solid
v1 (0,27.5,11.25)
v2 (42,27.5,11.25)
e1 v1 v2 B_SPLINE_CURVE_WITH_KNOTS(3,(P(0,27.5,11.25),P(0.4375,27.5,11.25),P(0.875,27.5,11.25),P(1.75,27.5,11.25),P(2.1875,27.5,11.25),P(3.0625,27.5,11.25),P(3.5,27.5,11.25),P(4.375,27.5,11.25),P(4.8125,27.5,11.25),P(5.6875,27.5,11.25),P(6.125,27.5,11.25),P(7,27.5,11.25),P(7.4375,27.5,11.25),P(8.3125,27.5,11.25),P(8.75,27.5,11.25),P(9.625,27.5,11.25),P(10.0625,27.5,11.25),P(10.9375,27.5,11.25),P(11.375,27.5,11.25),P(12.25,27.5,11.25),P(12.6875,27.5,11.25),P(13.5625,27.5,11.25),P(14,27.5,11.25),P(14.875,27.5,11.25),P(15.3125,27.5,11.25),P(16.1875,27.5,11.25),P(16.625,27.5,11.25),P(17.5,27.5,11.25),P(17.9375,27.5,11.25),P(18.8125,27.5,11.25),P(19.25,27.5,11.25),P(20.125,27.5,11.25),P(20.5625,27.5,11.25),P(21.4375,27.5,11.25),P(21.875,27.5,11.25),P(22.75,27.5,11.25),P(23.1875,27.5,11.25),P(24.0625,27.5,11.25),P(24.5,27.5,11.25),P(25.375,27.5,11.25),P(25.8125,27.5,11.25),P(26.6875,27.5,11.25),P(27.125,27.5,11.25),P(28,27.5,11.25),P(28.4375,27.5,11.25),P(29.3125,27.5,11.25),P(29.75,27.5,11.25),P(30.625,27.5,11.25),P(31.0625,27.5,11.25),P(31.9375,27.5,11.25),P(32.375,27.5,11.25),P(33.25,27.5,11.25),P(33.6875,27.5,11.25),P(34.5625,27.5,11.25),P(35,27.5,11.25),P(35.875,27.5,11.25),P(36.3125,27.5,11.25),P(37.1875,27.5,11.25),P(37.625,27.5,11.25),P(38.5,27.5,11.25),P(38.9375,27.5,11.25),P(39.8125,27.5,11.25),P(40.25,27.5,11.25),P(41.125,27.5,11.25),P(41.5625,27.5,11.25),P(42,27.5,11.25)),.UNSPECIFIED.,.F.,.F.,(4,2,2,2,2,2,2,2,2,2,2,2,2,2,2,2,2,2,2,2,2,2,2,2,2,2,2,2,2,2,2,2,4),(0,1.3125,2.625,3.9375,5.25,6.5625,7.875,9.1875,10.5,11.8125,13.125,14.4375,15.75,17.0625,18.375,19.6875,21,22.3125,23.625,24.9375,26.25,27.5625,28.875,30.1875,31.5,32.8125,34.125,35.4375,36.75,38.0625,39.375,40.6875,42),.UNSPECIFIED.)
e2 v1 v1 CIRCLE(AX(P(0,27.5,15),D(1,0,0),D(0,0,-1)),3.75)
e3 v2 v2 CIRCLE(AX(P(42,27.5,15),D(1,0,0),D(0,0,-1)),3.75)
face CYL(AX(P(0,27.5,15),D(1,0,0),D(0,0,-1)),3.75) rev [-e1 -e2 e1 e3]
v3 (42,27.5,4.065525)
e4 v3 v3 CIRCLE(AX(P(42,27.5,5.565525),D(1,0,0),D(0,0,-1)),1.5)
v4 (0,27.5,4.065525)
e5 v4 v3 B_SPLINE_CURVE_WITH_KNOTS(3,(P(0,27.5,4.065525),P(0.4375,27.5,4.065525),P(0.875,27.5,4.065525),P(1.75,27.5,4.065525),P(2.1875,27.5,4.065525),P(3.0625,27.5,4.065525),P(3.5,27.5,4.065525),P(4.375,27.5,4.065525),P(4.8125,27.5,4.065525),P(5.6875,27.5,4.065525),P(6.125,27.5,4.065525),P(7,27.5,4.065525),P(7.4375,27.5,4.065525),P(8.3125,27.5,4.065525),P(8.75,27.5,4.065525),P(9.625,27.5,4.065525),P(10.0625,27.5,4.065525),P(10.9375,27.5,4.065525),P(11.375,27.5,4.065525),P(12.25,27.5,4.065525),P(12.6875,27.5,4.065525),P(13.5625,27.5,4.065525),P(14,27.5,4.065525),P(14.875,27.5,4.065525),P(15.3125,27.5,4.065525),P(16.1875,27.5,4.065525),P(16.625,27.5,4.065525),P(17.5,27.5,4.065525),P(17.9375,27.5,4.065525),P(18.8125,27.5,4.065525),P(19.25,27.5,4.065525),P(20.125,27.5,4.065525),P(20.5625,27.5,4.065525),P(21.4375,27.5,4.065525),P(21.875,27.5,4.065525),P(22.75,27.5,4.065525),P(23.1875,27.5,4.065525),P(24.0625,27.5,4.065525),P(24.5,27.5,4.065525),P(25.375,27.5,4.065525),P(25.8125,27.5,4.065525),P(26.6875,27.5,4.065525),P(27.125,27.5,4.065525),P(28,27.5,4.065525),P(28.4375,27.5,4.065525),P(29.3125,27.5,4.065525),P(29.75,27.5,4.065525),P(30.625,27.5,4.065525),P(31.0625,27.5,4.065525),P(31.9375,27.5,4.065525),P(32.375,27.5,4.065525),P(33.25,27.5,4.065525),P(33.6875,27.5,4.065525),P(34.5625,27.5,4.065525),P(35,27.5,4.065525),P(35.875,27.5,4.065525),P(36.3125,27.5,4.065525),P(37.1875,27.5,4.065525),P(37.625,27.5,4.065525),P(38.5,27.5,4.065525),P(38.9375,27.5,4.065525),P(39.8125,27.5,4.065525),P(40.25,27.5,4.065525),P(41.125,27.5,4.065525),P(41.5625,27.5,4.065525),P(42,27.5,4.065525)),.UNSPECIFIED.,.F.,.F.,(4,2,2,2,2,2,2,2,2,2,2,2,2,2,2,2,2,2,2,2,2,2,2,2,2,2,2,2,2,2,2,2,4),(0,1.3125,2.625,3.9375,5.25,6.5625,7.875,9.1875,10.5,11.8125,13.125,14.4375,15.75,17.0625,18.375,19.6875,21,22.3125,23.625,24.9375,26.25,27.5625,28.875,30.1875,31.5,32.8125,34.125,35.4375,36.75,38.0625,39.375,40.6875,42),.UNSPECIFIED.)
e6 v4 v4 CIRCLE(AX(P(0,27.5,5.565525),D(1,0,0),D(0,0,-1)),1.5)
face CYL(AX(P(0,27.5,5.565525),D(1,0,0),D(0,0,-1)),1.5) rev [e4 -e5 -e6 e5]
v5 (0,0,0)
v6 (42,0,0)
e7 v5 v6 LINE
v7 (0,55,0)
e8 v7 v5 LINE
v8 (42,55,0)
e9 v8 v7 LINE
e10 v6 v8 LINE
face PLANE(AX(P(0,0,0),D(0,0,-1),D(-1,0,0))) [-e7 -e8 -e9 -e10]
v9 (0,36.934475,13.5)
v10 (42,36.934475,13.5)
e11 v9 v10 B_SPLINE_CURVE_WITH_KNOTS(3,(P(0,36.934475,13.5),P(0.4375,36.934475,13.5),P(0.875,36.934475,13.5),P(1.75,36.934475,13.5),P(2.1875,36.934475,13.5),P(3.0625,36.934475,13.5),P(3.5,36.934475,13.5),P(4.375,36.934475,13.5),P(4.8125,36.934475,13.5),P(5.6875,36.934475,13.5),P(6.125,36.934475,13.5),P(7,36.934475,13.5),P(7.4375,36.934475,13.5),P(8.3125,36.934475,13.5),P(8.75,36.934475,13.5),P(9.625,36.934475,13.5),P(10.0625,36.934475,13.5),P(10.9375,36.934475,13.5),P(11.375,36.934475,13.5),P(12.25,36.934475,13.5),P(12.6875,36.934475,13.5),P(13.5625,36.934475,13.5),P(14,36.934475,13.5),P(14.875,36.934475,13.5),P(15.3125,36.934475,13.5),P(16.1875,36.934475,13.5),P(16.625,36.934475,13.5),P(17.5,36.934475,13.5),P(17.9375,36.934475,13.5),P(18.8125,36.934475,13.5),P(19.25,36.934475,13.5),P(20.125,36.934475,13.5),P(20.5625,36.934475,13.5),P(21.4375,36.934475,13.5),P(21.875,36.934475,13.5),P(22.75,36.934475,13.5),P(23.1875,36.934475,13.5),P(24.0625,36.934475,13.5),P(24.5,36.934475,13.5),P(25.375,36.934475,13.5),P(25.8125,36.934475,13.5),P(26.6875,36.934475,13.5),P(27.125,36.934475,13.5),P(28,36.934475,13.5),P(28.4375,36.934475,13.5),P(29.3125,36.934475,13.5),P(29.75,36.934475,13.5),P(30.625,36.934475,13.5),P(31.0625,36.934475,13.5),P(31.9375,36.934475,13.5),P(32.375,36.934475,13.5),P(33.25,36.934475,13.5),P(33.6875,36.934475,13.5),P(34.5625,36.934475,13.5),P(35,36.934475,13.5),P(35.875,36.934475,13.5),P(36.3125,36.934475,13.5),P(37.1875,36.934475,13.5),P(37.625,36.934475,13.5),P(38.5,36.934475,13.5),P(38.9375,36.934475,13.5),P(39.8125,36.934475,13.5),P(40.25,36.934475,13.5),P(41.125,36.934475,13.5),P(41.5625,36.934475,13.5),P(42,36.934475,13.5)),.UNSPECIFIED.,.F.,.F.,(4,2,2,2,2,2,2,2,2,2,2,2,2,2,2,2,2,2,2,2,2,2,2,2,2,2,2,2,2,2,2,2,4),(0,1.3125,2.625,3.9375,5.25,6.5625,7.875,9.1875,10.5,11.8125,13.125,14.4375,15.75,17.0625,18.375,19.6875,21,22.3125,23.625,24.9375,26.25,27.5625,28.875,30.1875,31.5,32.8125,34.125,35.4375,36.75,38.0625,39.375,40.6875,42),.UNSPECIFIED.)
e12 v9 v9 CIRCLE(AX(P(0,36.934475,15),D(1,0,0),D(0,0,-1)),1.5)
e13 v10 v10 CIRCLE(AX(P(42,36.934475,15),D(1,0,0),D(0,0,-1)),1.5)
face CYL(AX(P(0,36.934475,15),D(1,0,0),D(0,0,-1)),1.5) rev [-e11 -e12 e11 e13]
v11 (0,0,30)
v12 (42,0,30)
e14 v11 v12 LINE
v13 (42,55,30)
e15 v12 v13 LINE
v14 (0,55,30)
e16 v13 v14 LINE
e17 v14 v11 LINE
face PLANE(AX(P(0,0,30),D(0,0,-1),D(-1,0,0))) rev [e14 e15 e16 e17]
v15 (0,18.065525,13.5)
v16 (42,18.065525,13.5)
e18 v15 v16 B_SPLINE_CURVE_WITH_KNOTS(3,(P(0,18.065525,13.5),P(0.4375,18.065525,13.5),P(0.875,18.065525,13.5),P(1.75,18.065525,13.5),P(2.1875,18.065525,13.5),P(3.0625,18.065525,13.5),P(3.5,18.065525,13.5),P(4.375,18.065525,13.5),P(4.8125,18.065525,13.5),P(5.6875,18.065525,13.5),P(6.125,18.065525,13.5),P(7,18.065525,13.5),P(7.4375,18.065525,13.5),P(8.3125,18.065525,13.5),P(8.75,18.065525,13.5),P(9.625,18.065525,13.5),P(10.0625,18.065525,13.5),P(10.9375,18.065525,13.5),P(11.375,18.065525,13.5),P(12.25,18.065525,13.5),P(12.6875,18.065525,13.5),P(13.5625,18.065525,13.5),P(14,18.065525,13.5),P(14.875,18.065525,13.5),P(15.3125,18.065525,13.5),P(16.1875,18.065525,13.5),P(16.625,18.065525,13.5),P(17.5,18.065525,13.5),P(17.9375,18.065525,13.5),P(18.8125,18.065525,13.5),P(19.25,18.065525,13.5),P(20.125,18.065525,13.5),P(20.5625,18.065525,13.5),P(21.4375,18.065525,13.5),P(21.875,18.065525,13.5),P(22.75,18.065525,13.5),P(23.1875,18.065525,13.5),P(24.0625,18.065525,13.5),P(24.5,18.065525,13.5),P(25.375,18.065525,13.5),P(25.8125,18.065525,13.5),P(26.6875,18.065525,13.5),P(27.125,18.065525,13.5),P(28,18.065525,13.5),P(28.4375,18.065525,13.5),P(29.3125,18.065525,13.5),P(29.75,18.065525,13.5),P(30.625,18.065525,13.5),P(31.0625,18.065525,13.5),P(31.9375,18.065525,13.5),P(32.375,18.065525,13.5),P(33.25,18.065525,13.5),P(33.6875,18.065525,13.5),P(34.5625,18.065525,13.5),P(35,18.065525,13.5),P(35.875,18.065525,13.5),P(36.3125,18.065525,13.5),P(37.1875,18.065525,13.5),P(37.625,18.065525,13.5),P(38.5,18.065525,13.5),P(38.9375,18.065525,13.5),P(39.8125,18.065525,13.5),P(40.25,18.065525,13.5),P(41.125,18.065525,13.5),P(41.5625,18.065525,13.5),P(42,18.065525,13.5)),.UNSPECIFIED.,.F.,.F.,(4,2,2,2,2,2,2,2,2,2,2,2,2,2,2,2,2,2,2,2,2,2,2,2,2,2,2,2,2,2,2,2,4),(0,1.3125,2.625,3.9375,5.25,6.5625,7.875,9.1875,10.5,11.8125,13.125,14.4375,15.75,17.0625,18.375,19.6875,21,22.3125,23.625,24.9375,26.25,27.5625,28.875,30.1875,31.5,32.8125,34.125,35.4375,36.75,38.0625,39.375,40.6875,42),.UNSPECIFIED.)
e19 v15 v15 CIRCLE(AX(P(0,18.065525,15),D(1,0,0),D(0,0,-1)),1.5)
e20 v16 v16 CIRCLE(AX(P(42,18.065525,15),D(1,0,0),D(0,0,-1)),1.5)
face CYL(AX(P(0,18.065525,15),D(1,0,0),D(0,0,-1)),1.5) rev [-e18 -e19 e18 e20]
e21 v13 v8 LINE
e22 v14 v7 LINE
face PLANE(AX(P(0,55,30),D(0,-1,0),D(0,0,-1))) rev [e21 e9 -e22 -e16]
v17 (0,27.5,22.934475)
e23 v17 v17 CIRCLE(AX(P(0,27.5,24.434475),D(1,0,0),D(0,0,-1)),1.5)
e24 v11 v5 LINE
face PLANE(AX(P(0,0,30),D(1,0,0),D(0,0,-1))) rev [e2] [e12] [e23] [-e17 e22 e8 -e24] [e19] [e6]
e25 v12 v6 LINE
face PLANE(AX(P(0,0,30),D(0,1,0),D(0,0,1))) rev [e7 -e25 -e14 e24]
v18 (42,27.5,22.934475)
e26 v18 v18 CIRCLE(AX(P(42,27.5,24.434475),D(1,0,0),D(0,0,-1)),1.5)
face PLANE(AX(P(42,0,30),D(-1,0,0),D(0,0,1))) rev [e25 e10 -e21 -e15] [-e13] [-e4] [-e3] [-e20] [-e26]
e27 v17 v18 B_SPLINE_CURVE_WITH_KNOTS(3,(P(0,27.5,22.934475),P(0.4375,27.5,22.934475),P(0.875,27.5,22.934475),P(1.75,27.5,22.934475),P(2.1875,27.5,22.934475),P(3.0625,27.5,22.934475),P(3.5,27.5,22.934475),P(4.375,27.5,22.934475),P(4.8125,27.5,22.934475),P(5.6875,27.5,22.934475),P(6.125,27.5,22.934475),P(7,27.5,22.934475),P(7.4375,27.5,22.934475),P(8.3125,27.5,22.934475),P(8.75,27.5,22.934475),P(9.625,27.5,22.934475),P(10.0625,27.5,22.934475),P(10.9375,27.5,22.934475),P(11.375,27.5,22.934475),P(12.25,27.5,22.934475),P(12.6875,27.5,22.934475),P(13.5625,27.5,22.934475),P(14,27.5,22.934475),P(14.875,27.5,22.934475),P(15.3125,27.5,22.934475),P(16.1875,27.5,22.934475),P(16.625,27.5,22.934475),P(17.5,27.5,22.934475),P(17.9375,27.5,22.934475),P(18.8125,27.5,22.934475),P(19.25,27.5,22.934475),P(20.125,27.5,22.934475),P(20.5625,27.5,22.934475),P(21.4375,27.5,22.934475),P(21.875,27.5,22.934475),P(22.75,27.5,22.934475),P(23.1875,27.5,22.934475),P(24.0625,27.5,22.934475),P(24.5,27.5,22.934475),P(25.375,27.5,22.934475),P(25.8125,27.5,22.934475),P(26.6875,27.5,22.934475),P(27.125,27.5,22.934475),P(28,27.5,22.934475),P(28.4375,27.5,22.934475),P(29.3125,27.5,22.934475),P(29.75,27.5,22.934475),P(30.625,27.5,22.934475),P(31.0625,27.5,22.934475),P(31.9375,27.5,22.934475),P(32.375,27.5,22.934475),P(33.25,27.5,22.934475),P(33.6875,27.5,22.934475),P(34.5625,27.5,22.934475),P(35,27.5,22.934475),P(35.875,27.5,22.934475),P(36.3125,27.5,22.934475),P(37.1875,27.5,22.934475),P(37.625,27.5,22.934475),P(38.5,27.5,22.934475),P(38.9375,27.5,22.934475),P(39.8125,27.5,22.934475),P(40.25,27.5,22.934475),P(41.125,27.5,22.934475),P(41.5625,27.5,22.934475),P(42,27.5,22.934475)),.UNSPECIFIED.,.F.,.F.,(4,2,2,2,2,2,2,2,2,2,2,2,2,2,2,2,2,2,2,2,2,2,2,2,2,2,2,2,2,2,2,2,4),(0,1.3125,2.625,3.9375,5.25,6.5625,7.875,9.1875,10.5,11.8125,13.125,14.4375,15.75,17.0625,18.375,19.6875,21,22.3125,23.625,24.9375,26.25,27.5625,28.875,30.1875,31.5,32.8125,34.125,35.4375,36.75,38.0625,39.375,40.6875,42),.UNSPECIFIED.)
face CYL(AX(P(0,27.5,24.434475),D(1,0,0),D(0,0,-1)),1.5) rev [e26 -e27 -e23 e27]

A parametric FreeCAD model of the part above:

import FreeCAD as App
import Part
import Sketcher

V = App.Vector
Q = App.Units.Quantity


def add_polygon(sketch, points):
    """Adds a closed chain of lines whose ends are joined by coincident constraints."""
    first, n = sketch.GeometryCount, len(points)
    for a, b in zip(points, points[1:] + points[:1]):
        sketch.addGeometry(Part.LineSegment(App.Vector(*a, 0), App.Vector(*b, 0)), False)
    for i in range(n):
        sketch.addConstraint(Sketcher.Constraint("Coincident", first + i, 2, first + (i + 1) % n, 1))

doc = App.newDocument("Part")
body = doc.addObject("PartDesign::Body", "Body")

# Sketch on XY plane
sketch1 = body.newObject("Sketcher::SketchObject", "Sketch")
sketch1.AttachmentSupport = (doc.getObject("XY_Plane"), [""])
sketch1.MapMode = "FlatFace"
add_polygon(sketch1, [(0, 55), (0, 0), (42, 0), (42, 55)])  # lines 0-3
sketch1.addConstraint(Sketcher.Constraint("Vertical", 0))
sketch1.addConstraint(Sketcher.Constraint("Horizontal", 1))
sketch1.addConstraint(Sketcher.Constraint("Vertical", 2))
sketch1.addConstraint(Sketcher.Constraint("Horizontal", 3))
sketch1.addConstraint(Sketcher.Constraint("Coincident", 0, 2, -1, 1))
sketch1.addConstraint(Sketcher.Constraint("DistanceX", 1, 1, 1, 2, Q("42 mm")))
sketch1.addConstraint(Sketcher.Constraint("DistanceY", 0, 2, 0, 1, Q("55 mm")))
pad1 = body.newObject("PartDesign::Pad", "Pad")
pad1.Profile = sketch1
pad1.Length = 30

# Sketch on YZ plane
sketch2 = body.newObject("Sketcher::SketchObject", "Sketch001")
sketch2.AttachmentSupport = (doc.getObject("YZ_Plane"), [""])
sketch2.MapMode = "FlatFace"
sketch2.AttachmentOffset = App.Placement(V(0, 0, 42), App.Rotation())
sketch2.addGeometry(Part.Circle(V(27.5, 15, 0), V(0, 0, 1), 3.8), False)
sketch2.addGeometry(Part.Circle(V(36.9, 15, 0), V(0, 0, 1), 1.5), False)
sketch2.addGeometry(Part.Circle(V(27.5, 5.6, 0), V(0, 0, 1), 1.5), False)
sketch2.addGeometry(Part.Circle(V(18.1, 15, 0), V(0, 0, 1), 1.5), False)
sketch2.addGeometry(Part.Circle(V(27.5, 24.4, 0), V(0, 0, 1), 1.5), False)
sketch2.addConstraint(Sketcher.Constraint("Equal", 1, 2))
sketch2.addConstraint(Sketcher.Constraint("Equal", 2, 3))
sketch2.addConstraint(Sketcher.Constraint("Equal", 3, 4))
sketch2.addConstraint(Sketcher.Constraint("Horizontal", 0, 3, 1, 3))
sketch2.addConstraint(Sketcher.Constraint("Horizontal", 1, 3, 3, 3))
sketch2.addConstraint(Sketcher.Constraint("Vertical", 0, 3, 2, 3))
sketch2.addConstraint(Sketcher.Constraint("Vertical", 2, 3, 4, 3))
sketch2.addConstraint(Sketcher.Constraint("Diameter", 1, Q("3 mm")))
sketch2.addConstraint(Sketcher.Constraint("Diameter", 0, Q("7.5 mm")))
sketch2.addConstraint(Sketcher.Constraint("DistanceY", -1, 1, 0, 3, Q("15 mm")))
sketch2.addConstraint(Sketcher.Constraint("DistanceX", -1, 1, 0, 3, Q("27.5 mm")))
sketch2.addConstraint(Sketcher.Constraint("DistanceX", 3, 3, 1, 3, Q("18.86895 mm")))
sketch2.addConstraint(Sketcher.Constraint("DistanceY", 2, 3, 4, 3, Q("18.86895 mm")))
sketch2.addConstraint(Sketcher.Constraint("DistanceX", -1, 1, 1, 3, Q("36.934475 mm")))
sketch2.addConstraint(Sketcher.Constraint("DistanceY", -1, 1, 2, 3, Q("5.565525 mm")))
pocket1 = body.newObject("PartDesign::Pocket", "Pocket")
pocket1.Profile = sketch2
pocket1.Type = "ThroughAll"

doc.recompute()
